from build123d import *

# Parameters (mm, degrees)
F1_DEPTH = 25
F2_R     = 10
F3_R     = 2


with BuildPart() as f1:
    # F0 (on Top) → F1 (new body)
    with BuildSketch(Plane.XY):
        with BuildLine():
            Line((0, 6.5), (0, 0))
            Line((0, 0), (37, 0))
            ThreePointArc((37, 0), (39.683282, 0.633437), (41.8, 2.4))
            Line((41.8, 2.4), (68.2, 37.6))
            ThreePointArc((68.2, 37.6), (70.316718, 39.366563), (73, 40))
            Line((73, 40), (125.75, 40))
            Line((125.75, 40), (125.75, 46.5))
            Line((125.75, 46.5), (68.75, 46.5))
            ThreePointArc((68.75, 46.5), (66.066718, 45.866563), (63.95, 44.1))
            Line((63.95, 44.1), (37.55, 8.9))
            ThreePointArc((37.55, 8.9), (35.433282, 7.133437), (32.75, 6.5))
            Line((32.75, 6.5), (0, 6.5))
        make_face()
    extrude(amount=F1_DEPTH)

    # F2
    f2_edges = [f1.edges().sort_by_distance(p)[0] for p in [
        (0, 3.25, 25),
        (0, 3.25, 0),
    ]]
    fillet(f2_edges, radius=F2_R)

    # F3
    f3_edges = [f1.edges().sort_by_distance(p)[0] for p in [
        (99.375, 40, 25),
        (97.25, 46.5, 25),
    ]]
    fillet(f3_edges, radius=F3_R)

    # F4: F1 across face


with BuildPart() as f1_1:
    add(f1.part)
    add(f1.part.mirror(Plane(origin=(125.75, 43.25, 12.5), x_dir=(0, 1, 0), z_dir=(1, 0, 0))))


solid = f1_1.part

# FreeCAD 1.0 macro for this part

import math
import FreeCAD as App
import Part
import Sketcher
from FreeCAD import Vector
Q = App.Units.Quantity


def edges_at(feature, points):
    """Names of the edges that pass closest to the given points."""
    edges = feature.Shape.Edges
    near = lambda p: min(range(len(edges)), key=lambda i: edges[i].distToShape(Part.Vertex(*p))[0])
    return sorted({f"Edge{near(p) + 1}" for p in points})

doc = App.newDocument("Part")
body = doc.addObject("PartDesign::Body", "Body")

# Sketch on XY plane
sketch1 = body.newObject("Sketcher::SketchObject", "Sketch")
sketch1.AttachmentSupport = (doc.getObject("XY_Plane"), [""])
sketch1.MapMode = "FlatFace"
sketch1.addGeometry(Part.LineSegment(Vector(0, 6, 0), Vector(0, 0, 0)), False)
sketch1.addGeometry(Part.LineSegment(Vector(0, 0, 0), Vector(37, 0, 0)), False)
sketch1.addGeometry(Part.ArcOfCircle(Part.Circle(Vector(37, 6, 0), Vector(0, 0, 1), 6), math.radians(-90), math.radians(-37)), False)
sketch1.addGeometry(Part.LineSegment(Vector(42, 2, 0), Vector(68, 38, 0)), False)
sketch1.addGeometry(Part.ArcOfCircle(Part.Circle(Vector(73, 34, 0), Vector(0, 0, 1), 6), math.radians(90), math.radians(143)), False)
sketch1.addGeometry(Part.LineSegment(Vector(73, 40, 0), Vector(126, 40, 0)), False)
sketch1.addGeometry(Part.LineSegment(Vector(126, 40, 0), Vector(126, 46, 0)), False)
sketch1.addGeometry(Part.LineSegment(Vector(126, 46, 0), Vector(69, 46, 0)), False)
sketch1.addGeometry(Part.ArcOfCircle(Part.Circle(Vector(69, 41, 0), Vector(0, 0, 1), 6), math.radians(90), math.radians(143)), False)
sketch1.addGeometry(Part.LineSegment(Vector(64, 44, 0), Vector(38, 9, 0)), False)
sketch1.addGeometry(Part.ArcOfCircle(Part.Circle(Vector(33, 12, 0), Vector(0, 0, 1), 6), math.radians(-90), math.radians(-37)), False)
sketch1.addGeometry(Part.LineSegment(Vector(33, 6, 0), Vector(0, 6, 0)), False)
sketch1.addConstraint(Sketcher.Constraint("Coincident", 0, 2, 1, 1))
sketch1.addConstraint(Sketcher.Constraint("Tangent", 1, 2, 2, 1))
sketch1.addConstraint(Sketcher.Constraint("Tangent", 2, 2, 3, 1))
sketch1.addConstraint(Sketcher.Constraint("Tangent", 3, 2, 4, 2))
sketch1.addConstraint(Sketcher.Constraint("Tangent", 4, 1, 5, 1))
sketch1.addConstraint(Sketcher.Constraint("Coincident", 5, 2, 6, 1))
sketch1.addConstraint(Sketcher.Constraint("Coincident", 6, 2, 7, 1))
sketch1.addConstraint(Sketcher.Constraint("Tangent", 7, 2, 8, 1))
sketch1.addConstraint(Sketcher.Constraint("Tangent", 8, 2, 9, 1))
sketch1.addConstraint(Sketcher.Constraint("Tangent", 9, 2, 10, 2))
sketch1.addConstraint(Sketcher.Constraint("Tangent", 10, 1, 11, 1))
sketch1.addConstraint(Sketcher.Constraint("Coincident", 11, 2, 0, 1))
sketch1.addConstraint(Sketcher.Constraint("Vertical", 0))
sketch1.addConstraint(Sketcher.Constraint("Horizontal", 1))
sketch1.addConstraint(Sketcher.Constraint("Horizontal", 5))
sketch1.addConstraint(Sketcher.Constraint("Vertical", 6))
sketch1.addConstraint(Sketcher.Constraint("Horizontal", 7))
sketch1.addConstraint(Sketcher.Constraint("Horizontal", 11))
sketch1.addConstraint(Sketcher.Constraint("Coincident", 0, 2, -1, 1))
sketch1.addConstraint(Sketcher.Constraint("Equal", 2, 4))
sketch1.addConstraint(Sketcher.Constraint("Equal", 4, 8))
sketch1.addConstraint(Sketcher.Constraint("Equal", 8, 10))
sketch1.addConstraint(Sketcher.Constraint("Parallel", 3, 9))
sketch1.addConstraint(Sketcher.Constraint("Equal", 0, 6))
sketch1.addConstraint(Sketcher.Constraint("Radius", 2, Q("5.999999 mm")))
sketch1.addConstraint(Sketcher.Constraint("DistanceX", 1, 1, 1, 2, Q("37 mm")))
sketch1.addConstraint(Sketcher.Constraint("DistanceX", 7, 2, 7, 1, Q("57 mm")))
sketch1.addConstraint(Sketcher.Constraint("Distance", 3, Q("44 mm")))
sketch1.addConstraint(Sketcher.Constraint("DistanceY", 0, 2, 0, 1, Q("6.5 mm")))
sketch1.addConstraint(Sketcher.Constraint("DistanceX", -1, 1, 4, 3, Q("73 mm")))
sketch1.addConstraint(Sketcher.Constraint("DistanceX", 5, 1, 5, 2, Q("52.75 mm")))
pad1 = body.newObject("PartDesign::Pad", "Pad")
pad1.Profile = sketch1
pad1.Length = 25
doc.recompute()

fillet = body.newObject("PartDesign::Fillet", "Fillet")
fillet.Base = (pad1, edges_at(pad1, [(0, 3.25, 25), (0, 3.25, 0)]))
fillet.Radius = 10
doc.recompute()

fillet2 = body.newObject("PartDesign::Fillet", "Fillet001")
fillet2.Base = (fillet, edges_at(fillet, [(99.375, 40, 25), (97.25, 46.5, 25)]))
fillet2.Radius = 2
body2 = doc.addObject("PartDesign::Body", "Body001")
doc.recompute()

body2.BaseFeature = body
doc.recompute()

mirroring = doc.addObject("Part::Mirroring", "Mirroring")
mirroring.Source = body
mirroring.Base = Vector(125.75, 43.25, 12.5)
mirroring.Normal = Vector(1, 0, 0)
body3 = doc.addObject("PartDesign::Body", "Body002")
body3.BaseFeature = mirroring
boolean = body2.newObject("PartDesign::Boolean", "Boolean")
boolean.Type = "Fuse"
boolean.addObjects([body3])
doc.recompute()
mirroring.Visibility = False

doc.recompute()
